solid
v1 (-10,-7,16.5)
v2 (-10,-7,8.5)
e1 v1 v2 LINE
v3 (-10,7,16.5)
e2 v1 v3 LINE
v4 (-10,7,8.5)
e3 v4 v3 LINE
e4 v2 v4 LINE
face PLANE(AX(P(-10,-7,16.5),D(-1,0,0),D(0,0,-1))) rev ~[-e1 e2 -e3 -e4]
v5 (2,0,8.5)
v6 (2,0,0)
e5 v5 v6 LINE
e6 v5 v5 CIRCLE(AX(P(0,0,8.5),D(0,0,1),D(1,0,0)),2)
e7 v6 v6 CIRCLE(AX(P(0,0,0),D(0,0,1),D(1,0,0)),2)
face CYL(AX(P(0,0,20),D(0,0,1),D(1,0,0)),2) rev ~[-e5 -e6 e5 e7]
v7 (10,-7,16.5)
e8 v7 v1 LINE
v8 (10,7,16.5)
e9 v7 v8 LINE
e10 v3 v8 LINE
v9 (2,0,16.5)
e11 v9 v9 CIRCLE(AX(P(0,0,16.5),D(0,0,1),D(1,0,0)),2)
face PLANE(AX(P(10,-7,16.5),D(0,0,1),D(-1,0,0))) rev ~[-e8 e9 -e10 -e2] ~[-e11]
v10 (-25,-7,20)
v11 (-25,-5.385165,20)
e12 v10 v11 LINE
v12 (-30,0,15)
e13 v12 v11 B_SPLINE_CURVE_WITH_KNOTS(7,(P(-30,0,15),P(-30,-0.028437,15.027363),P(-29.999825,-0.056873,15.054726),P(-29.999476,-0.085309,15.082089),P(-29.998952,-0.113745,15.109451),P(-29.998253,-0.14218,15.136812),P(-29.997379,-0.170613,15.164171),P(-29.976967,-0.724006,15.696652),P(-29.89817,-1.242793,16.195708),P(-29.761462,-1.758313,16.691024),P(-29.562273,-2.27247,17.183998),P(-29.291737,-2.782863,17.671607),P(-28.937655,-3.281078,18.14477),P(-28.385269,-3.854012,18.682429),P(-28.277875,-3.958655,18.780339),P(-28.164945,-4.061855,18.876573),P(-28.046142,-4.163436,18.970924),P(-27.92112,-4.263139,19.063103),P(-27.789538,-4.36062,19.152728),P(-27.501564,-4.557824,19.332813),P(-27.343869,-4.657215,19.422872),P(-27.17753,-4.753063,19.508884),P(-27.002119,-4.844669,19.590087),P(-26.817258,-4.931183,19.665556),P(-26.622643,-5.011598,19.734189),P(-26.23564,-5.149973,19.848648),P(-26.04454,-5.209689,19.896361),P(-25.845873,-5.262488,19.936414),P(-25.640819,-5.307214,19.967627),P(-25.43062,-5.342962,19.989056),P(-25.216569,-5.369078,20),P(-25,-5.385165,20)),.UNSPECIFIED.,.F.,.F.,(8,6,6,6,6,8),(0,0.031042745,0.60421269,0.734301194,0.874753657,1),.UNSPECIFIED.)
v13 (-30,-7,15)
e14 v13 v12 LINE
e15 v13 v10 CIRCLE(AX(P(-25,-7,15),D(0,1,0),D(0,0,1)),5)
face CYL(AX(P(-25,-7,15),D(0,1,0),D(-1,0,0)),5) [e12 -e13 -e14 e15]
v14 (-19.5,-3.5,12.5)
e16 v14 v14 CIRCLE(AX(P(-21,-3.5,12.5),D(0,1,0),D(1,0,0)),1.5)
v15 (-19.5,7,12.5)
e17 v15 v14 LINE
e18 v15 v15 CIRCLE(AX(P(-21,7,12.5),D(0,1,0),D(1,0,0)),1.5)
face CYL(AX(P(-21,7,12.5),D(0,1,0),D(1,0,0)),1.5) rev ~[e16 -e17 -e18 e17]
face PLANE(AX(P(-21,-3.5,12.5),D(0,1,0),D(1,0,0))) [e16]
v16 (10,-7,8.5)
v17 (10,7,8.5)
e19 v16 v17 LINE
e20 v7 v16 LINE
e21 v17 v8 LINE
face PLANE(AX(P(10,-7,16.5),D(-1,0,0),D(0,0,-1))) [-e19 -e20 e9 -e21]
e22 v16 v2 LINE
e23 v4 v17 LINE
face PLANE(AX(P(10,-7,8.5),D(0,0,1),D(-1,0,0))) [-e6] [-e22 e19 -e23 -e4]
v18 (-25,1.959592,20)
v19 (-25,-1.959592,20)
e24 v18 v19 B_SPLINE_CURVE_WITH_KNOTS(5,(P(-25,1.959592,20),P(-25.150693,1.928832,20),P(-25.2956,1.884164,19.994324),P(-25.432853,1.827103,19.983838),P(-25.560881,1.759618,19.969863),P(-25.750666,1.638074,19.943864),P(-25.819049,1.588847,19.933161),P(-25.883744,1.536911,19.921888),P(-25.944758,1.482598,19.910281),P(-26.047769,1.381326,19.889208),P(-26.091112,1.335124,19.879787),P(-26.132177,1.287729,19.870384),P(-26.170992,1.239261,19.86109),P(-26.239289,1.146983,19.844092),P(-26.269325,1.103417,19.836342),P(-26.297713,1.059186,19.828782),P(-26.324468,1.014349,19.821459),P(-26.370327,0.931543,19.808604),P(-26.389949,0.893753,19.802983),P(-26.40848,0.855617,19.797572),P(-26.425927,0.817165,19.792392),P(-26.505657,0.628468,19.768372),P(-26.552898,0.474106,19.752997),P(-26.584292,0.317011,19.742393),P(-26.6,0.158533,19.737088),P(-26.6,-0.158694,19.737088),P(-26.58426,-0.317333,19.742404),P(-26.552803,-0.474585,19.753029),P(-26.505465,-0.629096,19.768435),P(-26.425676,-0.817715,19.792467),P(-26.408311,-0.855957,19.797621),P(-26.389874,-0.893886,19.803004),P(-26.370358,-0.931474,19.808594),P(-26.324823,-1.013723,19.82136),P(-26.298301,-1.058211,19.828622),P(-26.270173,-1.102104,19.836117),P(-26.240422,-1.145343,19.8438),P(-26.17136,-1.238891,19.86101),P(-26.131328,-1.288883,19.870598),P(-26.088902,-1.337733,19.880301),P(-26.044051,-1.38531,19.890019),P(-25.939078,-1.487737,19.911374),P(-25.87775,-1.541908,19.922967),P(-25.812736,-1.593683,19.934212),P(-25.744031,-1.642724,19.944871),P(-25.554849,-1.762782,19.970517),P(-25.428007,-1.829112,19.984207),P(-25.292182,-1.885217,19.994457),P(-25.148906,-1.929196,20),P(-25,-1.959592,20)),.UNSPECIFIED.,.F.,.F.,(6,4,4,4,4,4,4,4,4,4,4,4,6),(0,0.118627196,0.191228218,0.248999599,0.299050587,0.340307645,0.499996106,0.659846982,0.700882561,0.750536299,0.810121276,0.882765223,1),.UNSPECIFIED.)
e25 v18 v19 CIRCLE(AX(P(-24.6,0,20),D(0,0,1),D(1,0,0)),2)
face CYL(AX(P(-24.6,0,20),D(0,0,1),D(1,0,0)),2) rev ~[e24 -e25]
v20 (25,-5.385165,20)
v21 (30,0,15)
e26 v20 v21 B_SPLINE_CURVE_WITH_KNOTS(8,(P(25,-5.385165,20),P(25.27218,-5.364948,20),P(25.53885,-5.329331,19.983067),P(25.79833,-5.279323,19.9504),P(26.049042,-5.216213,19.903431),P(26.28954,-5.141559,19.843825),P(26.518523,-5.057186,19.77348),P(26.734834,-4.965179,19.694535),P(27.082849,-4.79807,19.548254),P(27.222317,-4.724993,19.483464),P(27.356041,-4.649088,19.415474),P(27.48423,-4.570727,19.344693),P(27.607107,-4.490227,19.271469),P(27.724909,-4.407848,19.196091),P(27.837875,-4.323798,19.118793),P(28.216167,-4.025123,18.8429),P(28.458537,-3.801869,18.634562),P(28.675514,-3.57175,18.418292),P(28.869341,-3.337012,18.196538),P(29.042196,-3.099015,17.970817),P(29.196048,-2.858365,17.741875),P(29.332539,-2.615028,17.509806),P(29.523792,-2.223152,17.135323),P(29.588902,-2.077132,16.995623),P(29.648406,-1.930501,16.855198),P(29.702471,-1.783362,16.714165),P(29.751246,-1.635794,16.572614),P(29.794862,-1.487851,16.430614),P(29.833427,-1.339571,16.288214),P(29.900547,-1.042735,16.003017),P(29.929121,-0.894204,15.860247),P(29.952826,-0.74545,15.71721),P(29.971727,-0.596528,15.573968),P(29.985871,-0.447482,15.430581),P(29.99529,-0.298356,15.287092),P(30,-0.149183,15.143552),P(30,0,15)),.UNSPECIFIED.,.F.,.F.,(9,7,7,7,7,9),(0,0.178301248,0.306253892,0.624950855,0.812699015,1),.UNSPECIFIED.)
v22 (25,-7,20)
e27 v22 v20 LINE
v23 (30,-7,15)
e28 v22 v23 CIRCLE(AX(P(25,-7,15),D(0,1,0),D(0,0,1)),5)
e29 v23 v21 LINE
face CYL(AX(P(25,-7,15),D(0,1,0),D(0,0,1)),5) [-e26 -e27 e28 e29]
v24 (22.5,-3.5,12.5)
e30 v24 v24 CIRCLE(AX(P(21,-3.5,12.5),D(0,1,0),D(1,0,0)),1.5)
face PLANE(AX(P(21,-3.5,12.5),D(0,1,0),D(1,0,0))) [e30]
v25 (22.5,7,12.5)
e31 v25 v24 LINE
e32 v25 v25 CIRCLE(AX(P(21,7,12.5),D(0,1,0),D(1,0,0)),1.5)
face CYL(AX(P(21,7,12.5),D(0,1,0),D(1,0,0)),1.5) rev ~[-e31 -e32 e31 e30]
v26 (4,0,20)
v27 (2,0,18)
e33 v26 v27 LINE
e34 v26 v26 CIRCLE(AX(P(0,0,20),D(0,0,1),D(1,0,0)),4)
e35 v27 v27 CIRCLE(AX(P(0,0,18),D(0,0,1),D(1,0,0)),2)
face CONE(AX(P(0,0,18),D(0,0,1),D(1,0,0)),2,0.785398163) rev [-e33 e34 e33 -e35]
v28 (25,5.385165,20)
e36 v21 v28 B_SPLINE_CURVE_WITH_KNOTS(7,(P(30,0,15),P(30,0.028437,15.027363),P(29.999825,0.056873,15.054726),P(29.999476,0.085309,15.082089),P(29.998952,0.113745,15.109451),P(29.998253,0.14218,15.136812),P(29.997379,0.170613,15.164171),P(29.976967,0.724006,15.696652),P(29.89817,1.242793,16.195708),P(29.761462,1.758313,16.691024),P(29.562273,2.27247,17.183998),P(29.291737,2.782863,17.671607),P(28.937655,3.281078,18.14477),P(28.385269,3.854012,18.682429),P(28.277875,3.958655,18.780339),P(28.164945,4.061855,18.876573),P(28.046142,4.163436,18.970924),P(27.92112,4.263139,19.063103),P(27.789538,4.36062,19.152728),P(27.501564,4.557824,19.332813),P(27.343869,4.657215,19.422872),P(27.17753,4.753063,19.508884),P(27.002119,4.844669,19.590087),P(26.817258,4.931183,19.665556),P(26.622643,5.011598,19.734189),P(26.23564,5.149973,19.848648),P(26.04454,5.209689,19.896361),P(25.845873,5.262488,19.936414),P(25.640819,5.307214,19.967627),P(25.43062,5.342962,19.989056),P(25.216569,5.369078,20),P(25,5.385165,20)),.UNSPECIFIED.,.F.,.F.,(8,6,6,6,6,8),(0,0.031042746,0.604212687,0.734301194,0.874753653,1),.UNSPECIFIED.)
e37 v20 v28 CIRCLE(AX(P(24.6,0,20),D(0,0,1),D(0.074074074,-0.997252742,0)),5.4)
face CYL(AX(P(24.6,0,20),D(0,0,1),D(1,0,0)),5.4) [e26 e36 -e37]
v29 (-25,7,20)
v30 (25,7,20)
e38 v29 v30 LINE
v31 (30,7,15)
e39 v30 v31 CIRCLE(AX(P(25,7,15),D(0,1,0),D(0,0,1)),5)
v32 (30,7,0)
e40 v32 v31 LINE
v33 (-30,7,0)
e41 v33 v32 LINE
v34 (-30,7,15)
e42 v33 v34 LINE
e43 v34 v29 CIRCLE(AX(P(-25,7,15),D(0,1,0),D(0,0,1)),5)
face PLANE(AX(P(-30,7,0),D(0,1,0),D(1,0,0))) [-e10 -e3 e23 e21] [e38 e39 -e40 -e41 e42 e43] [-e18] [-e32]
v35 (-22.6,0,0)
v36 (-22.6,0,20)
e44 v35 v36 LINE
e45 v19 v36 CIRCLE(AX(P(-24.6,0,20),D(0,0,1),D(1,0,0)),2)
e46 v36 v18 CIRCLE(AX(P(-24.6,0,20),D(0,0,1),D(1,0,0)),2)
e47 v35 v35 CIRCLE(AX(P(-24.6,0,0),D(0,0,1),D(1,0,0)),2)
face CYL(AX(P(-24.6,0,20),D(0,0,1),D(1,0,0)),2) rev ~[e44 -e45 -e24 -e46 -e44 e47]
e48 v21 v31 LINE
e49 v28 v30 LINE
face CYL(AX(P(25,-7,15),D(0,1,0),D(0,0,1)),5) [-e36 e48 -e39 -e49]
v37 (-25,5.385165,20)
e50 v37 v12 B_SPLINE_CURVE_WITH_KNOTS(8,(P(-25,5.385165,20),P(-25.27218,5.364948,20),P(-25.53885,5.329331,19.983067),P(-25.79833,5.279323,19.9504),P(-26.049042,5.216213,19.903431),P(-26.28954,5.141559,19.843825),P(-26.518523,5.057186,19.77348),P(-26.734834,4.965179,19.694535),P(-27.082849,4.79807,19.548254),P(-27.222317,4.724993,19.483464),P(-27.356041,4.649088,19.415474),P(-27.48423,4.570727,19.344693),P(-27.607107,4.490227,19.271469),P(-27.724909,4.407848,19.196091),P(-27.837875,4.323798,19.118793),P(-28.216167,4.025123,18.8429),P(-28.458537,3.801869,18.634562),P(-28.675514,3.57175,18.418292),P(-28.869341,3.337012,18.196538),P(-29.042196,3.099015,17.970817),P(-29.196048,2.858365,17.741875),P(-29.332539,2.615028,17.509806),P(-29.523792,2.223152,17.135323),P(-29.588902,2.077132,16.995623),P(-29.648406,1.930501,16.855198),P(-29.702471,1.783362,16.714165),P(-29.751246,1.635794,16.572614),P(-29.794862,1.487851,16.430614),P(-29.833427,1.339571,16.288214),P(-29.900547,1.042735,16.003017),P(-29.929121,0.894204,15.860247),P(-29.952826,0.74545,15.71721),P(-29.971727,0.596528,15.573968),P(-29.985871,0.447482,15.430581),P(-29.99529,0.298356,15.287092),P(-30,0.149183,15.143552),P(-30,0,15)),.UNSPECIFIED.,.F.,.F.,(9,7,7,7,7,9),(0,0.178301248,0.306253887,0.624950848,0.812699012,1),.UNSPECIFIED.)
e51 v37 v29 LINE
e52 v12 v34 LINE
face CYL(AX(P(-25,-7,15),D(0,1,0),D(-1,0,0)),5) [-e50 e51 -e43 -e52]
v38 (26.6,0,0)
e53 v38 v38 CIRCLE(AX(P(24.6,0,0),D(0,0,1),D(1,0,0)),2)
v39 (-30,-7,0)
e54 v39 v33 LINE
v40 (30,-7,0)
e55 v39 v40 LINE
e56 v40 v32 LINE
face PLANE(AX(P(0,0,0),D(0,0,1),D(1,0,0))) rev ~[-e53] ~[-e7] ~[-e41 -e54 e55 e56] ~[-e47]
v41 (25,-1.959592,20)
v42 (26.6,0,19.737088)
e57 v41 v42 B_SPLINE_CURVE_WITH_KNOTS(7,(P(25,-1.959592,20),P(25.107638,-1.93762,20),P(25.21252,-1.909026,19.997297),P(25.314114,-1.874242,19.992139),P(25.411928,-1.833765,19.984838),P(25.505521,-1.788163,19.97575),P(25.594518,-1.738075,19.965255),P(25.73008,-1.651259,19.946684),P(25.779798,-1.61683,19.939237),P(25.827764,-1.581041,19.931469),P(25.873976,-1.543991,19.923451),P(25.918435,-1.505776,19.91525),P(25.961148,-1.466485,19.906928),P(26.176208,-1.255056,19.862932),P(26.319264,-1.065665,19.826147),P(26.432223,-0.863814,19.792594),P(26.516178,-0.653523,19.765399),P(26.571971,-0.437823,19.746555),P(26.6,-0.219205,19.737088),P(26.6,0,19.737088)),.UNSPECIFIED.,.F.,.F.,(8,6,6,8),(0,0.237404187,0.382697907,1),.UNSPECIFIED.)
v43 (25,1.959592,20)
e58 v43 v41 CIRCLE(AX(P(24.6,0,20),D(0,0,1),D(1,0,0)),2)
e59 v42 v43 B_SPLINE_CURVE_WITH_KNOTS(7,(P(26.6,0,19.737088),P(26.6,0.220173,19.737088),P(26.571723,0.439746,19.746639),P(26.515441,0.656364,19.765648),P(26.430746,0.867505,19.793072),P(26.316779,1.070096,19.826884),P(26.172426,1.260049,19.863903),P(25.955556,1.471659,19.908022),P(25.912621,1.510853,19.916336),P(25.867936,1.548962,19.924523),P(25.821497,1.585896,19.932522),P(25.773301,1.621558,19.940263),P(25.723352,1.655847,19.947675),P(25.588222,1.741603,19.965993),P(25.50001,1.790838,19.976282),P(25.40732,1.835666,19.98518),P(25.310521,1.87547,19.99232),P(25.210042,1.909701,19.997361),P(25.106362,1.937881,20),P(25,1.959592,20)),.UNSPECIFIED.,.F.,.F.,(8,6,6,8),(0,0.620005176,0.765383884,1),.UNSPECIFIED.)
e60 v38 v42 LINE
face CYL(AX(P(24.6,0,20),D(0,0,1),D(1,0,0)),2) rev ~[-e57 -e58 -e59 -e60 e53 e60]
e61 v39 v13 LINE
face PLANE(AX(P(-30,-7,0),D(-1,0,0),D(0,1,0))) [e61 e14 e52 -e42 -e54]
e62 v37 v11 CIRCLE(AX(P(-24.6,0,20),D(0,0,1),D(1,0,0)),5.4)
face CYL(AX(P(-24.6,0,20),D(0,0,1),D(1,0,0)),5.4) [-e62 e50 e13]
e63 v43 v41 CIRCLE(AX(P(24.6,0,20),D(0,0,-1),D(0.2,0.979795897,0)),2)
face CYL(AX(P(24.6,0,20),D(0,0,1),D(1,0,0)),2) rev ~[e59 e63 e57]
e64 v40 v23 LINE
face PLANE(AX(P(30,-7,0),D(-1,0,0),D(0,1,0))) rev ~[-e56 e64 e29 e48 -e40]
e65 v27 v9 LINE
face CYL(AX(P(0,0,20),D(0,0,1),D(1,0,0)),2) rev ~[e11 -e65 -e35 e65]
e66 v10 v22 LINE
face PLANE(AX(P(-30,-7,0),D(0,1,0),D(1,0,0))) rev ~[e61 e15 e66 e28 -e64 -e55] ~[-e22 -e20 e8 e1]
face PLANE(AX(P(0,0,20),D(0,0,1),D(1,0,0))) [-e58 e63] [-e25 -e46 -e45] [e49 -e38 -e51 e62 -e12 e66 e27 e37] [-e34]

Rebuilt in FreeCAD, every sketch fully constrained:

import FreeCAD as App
import Part
import Sketcher
Q = App.Units.Quantity


def edges_at(feature, points):
    """Names of the edges that pass closest to the given points."""
    edges = feature.Shape.Edges
    near = lambda p: min(range(len(edges)), key=lambda i: edges[i].distToShape(Part.Vertex(*p))[0])
    return sorted({f"Edge{near(p) + 1}" for p in points})

doc = App.newDocument("Part")
body = doc.addObject("PartDesign::Body", "Body")

# Sketch on XY plane
sketch1 = doc.addObject("Sketcher::SketchObject", "Sketch")
body.addObject(sketch1)
sketch1.AttachmentSupport = (doc.XY_Plane, [""])
sketch1.MapMode = "FlatFace"
sketch1.addGeometry([
    Part.LineSegment(App.Vector(-30, 7, 0), App.Vector(-30, -7, 0)),
    Part.LineSegment(App.Vector(-30, -7, 0), App.Vector(30, -7, 0)),
    Part.LineSegment(App.Vector(30, -7, 0), App.Vector(30, 7, 0)),
    Part.LineSegment(App.Vector(30, 7, 0), App.Vector(-30, 7, 0)),
], False)
sketch1.addConstraint([
    Sketcher.Constraint("Coincident", 0, 2, 1, 1),
    Sketcher.Constraint("Coincident", 1, 2, 2, 1),
    Sketcher.Constraint("Coincident", 2, 2, 3, 1),
    Sketcher.Constraint("Coincident", 3, 2, 0, 1),
    Sketcher.Constraint("Vertical", 0),
    Sketcher.Constraint("Horizontal", 1),
    Sketcher.Constraint("Vertical", 2),
    Sketcher.Constraint("Horizontal", 3),
    Sketcher.Constraint("Symmetric", 0, 2, 2, 2, -1, 1),
    Sketcher.Constraint("DistanceX", 1, 1, 1, 2, Q("60 mm")),
    Sketcher.Constraint("DistanceY", 0, 2, 0, 1, Q("14 mm")),
])
pad1 = doc.addObject("PartDesign::Pad", "Pad")
body.addObject(pad1)
pad1.Profile = sketch1
pad1.Length = 20

# Sketch on XZ plane
sketch2 = doc.addObject("Sketcher::SketchObject", "Sketch001")
body.addObject(sketch2)
sketch2.AttachmentSupport = (doc.XZ_Plane, [""])
sketch2.MapMode = "FlatFace"
sketch2.AttachmentOffset = App.Placement(App.Vector(0, 0, 7), App.Rotation())
sketch2.addGeometry([
    Part.LineSegment(App.Vector(10, 8, 0), App.Vector(10, 16, 0)),
    Part.LineSegment(App.Vector(10, 16, 0), App.Vector(-10, 16, 0)),
    Part.LineSegment(App.Vector(-10, 16, 0), App.Vector(-10, 8, 0)),
    Part.LineSegment(App.Vector(-10, 8, 0), App.Vector(10, 8, 0)),
], False)
sketch2.addConstraint([
    Sketcher.Constraint("Coincident", 0, 2, 1, 1),
    Sketcher.Constraint("Coincident", 1, 2, 2, 1),
    Sketcher.Constraint("Coincident", 2, 2, 3, 1),
    Sketcher.Constraint("Coincident", 3, 2, 0, 1),
    Sketcher.Constraint("Vertical", 0),
    Sketcher.Constraint("Horizontal", 1),
    Sketcher.Constraint("Vertical", 2),
    Sketcher.Constraint("Horizontal", 3),
    Sketcher.Constraint("DistanceX", 1, 2, 1, 1, Q("20 mm")),
    Sketcher.Constraint("DistanceY", 0, 1, 0, 2, Q("8 mm")),
    Sketcher.Constraint("DistanceX", -1, 1, 0, 2, Q("10 mm")),
    Sketcher.Constraint("DistanceY", -1, 1, 0, 2, Q("16.5 mm")),
])
pocket1 = doc.addObject("PartDesign::Pocket", "Pocket")
body.addObject(pocket1)
pocket1.Profile = sketch2
pocket1.Type = "ThroughAll"

# Sketch on XZ plane
sketch3 = doc.addObject("Sketcher::SketchObject", "Sketch002")
body.addObject(sketch3)
sketch3.AttachmentSupport = (doc.XZ_Plane, [""])
sketch3.MapMode = "FlatFace"
sketch3.AttachmentOffset = App.Placement(App.Vector(0, 0, -7), App.Rotation())
sketch3.addGeometry([
    Part.Circle(App.Vector(-21, 12.5, 0), App.Vector(0, 0, 1), 1.5),
    Part.Circle(App.Vector(21, 12.5, 0), App.Vector(0, 0, 1), 1.5),
], False)
sketch3.addConstraint([
    Sketcher.Constraint("Equal", 0, 1),
    Sketcher.Constraint("Symmetric", 0, 3, 1, 3, -2),
    Sketcher.Constraint("Diameter", 0, Q("3 mm")),
    Sketcher.Constraint("DistanceX", 0, 3, -1, 1, Q("21 mm")),
    Sketcher.Constraint("DistanceY", -1, 1, 0, 3, Q("12.5 mm")),
])
pocket2 = doc.addObject("PartDesign::Pocket", "Pocket001")
body.addObject(pocket2)
pocket2.Profile = sketch3
pocket2.Length = 10.5
pocket2.Reversed = True
doc.recompute()

fillet = doc.addObject("PartDesign::Fillet", "Fillet")
body.addObject(fillet)
fillet.Base = (pocket2, edges_at(pocket2, [(30, 0, 20), (-30, 0, 20)]))
fillet.Radius = 5

# Sketch on XY plane
sketch4 = doc.addObject("Sketcher::SketchObject", "Sketch003")
body.addObject(sketch4)
sketch4.AttachmentSupport = (doc.XY_Plane, [""])
sketch4.MapMode = "FlatFace"
sketch4.AttachmentOffset = App.Placement(App.Vector(0, 0, 20), App.Rotation())
sketch4.addGeometry([
    Part.Circle(App.Vector(24.6, 0, 0), App.Vector(0, 0, 1), 2),
    Part.Circle(App.Vector(-24.6, 0, 0), App.Vector(0, 0, 1), 2),
    Part.Circle(App.Vector(0, 0, 0), App.Vector(0, 0, 1), 2),
], False)
sketch4.addConstraint([
    Sketcher.Constraint("Coincident", 2, 3, -1, 1),
    Sketcher.Constraint("Equal", 0, 1),
    Sketcher.Constraint("Equal", 1, 2),
    Sketcher.Constraint("Symmetric", 0, 3, 1, 3, -1, 1),
    Sketcher.Constraint("PointOnObject", 0, 3, -1),
    Sketcher.Constraint("Diameter", 0, Q("4 mm")),
    Sketcher.Constraint("DistanceX", -1, 1, 0, 3, Q("24.6 mm")),
])
pocket3 = doc.addObject("PartDesign::Pocket", "Pocket002")
body.addObject(pocket3)
pocket3.Profile = sketch4
pocket3.Type = "ThroughAll"
doc.recompute()

chamfer = doc.addObject("PartDesign::Chamfer", "Chamfer")
body.addObject(chamfer)
chamfer.Base = (pocket3, edges_at(pocket3, [(-2, 0, 20)]))
chamfer.Size = 2

# Sketch on XY plane
sketch5 = doc.addObject("Sketcher::SketchObject", "Sketch004")
body.addObject(sketch5)
sketch5.AttachmentSupport = (doc.XY_Plane, [""])
sketch5.MapMode = "FlatFace"
sketch5.AttachmentOffset = App.Placement(App.Vector(0, 0, 20), App.Rotation())
sketch5.addGeometry([
    Part.Circle(App.Vector(-24.6, 0, 0), App.Vector(0, 0, 1), 5.4),
    Part.Circle(App.Vector(-24.6, 0, 0), App.Vector(0, 0, 1), 2),
    Part.Circle(App.Vector(24.6, 0, 0), App.Vector(0, 0, 1), 5.4),
    Part.Circle(App.Vector(24.6, 0, 0), App.Vector(0, 0, 1), 2),
], False)
sketch5.addConstraint([
    Sketcher.Constraint("Coincident", 1, 3, 0, 3),
    Sketcher.Constraint("Coincident", 3, 3, 2, 3),
    Sketcher.Constraint("Equal", 0, 2),
    Sketcher.Constraint("Equal", 1, 3),
    Sketcher.Constraint("Symmetric", 0, 3, 2, 3, -1, 1),
    Sketcher.Constraint("PointOnObject", 0, 3, -1),
    Sketcher.Constraint("Diameter", 1, Q("4 mm")),
    Sketcher.Constraint("Diameter", 0, Q("10.8 mm")),
    Sketcher.Constraint("DistanceX", 0, 3, -1, 1, Q("24.6 mm")),
])
pad2 = doc.addObject("PartDesign::Pad", "Pad001")
body.addObject(pad2)
pad2.Profile = sketch5
pad2.Length = 5.5
pad2.Reversed = True

doc.recompute()
